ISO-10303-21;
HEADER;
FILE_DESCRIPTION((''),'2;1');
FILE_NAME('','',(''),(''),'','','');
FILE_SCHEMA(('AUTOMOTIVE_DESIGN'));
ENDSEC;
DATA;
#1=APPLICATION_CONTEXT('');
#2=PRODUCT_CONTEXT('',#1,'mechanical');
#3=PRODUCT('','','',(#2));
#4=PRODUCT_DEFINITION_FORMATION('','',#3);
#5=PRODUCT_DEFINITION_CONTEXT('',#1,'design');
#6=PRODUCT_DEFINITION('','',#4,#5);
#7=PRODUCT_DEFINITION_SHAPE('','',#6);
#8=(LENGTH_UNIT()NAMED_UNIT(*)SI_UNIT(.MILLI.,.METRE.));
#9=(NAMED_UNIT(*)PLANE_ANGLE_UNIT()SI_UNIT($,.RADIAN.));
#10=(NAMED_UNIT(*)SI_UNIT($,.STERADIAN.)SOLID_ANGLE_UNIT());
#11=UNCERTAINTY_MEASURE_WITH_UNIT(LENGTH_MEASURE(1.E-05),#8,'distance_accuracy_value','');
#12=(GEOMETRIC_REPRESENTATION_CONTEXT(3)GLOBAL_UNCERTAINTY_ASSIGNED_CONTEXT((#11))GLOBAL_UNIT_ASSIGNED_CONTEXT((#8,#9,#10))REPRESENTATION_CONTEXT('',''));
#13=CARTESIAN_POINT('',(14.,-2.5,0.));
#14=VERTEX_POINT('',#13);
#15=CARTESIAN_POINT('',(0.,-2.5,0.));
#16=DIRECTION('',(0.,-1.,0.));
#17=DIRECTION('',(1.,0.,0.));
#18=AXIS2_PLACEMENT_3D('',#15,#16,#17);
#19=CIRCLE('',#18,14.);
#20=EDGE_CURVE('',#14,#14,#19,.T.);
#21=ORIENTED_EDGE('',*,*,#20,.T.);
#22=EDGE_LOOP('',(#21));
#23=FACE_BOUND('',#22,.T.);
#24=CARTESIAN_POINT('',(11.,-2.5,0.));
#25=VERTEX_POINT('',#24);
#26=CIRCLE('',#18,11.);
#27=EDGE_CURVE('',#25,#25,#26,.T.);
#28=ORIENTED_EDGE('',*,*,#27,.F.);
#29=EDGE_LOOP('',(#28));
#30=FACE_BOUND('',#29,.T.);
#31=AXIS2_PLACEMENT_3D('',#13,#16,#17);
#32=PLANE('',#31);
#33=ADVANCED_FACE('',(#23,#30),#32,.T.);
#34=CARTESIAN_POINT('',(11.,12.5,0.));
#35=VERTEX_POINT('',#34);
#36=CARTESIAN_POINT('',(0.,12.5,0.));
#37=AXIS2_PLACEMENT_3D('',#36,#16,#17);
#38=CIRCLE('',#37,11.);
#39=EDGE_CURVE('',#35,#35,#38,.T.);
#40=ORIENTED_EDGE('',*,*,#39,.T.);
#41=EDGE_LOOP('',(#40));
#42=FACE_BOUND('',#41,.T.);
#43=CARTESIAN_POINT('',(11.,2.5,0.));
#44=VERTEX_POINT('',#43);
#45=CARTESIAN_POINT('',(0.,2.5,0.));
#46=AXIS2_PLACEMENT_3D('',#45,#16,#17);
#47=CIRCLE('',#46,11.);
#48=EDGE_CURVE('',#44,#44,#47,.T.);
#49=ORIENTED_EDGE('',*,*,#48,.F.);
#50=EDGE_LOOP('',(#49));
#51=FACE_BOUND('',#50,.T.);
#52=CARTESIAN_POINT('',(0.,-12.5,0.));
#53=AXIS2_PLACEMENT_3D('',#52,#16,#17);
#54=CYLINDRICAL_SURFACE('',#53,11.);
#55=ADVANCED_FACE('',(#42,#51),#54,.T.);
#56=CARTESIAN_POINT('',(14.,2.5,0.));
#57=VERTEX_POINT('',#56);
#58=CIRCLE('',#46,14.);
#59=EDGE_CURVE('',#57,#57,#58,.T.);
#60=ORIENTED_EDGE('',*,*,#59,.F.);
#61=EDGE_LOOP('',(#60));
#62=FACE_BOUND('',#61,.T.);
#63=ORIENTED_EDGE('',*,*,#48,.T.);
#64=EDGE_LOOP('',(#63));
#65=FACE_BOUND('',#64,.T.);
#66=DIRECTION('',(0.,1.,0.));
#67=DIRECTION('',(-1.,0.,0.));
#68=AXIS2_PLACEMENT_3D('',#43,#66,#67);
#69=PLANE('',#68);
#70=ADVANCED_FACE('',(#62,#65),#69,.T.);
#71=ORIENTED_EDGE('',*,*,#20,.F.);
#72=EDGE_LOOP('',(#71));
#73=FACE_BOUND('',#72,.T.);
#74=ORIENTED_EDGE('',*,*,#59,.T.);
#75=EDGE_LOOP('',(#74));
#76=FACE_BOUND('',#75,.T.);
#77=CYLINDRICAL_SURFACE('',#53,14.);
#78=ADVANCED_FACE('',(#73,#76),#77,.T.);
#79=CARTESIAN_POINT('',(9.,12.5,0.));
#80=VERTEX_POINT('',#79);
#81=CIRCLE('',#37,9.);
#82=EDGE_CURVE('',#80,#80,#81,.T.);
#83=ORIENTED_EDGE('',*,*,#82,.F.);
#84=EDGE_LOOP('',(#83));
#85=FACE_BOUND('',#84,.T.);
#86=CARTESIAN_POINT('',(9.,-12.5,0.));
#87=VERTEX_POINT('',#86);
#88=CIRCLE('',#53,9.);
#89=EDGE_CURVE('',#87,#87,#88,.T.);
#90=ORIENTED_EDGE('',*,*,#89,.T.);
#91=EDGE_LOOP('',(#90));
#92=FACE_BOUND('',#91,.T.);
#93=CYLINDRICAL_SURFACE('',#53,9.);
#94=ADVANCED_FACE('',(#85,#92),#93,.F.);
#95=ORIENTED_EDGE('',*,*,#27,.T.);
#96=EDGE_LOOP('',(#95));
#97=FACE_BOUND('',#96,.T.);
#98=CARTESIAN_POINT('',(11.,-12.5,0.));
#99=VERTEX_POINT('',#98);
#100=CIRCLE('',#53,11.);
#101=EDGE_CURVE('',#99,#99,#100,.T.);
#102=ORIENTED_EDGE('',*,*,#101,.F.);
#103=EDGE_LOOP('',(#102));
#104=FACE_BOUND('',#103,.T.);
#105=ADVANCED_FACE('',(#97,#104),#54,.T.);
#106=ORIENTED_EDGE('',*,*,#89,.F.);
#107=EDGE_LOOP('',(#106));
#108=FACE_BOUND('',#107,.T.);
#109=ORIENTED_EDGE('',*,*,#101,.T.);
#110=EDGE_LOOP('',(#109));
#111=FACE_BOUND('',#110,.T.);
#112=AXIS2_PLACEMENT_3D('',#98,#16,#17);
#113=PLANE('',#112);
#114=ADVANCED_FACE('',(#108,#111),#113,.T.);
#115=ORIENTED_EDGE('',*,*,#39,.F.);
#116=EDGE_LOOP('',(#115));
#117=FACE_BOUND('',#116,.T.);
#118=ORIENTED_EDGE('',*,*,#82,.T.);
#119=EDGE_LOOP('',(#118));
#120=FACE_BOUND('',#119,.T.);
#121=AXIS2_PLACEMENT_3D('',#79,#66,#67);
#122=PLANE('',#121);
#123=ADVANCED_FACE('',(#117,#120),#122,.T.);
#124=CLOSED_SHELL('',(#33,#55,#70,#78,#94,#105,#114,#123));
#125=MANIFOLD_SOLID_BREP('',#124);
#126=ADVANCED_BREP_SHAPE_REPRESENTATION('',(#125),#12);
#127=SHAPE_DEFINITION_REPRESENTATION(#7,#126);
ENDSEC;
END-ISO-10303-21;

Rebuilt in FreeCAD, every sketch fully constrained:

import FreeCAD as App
import Part
import Sketcher
from FreeCAD import Vector
Q = App.Units.Quantity


def add_polygon(sketch, points):
    """Adds a closed chain of lines whose ends are joined by coincident constraints."""
    first, n = sketch.GeometryCount, len(points)
    for a, b in zip(points, points[1:] + points[:1]):
        sketch.addGeometry(Part.LineSegment(App.Vector(*a, 0), App.Vector(*b, 0)), False)
    for i in range(n):
        sketch.addConstraint(Sketcher.Constraint("Coincident", first + i, 2, first + (i + 1) % n, 1))

doc = App.newDocument("Part")
body = doc.addObject("PartDesign::Body", "Body")

# Sketch on XY plane
sketch1 = doc.addObject("Sketcher::SketchObject", "Sketch")
body.addObject(sketch1)
sketch1.AttachmentSupport = (doc.XY_Plane, [""])
sketch1.MapMode = "FlatFace"
add_polygon(sketch1, [(11, 12.5), (9, 12.5), (9, -12.5), (11, -12.5), (11, -2.5), (14, -2.5), (14, 2.5), (11, 2.5)])  # lines 0-7
sketch1.addConstraint([
    Sketcher.Constraint("Horizontal", 0),
    Sketcher.Constraint("Vertical", 1),
    Sketcher.Constraint("Horizontal", 2),
    Sketcher.Constraint("Vertical", 3),
    Sketcher.Constraint("Horizontal", 4),
    Sketcher.Constraint("Vertical", 5),
    Sketcher.Constraint("Horizontal", 6),
    Sketcher.Constraint("Vertical", 7),
    Sketcher.Constraint("Symmetric", 3, 2, 6, 2, -1),
    Sketcher.Constraint("Equal", 3, 7),
    Sketcher.Constraint("DistanceX", 0, 2, 0, 1, Q("2 mm")),
    Sketcher.Constraint("DistanceX", 4, 1, 4, 2, Q("3 mm")),
    Sketcher.Constraint("DistanceY", 1, 2, 1, 1, Q("25 mm")),
    Sketcher.Constraint("DistanceY", 3, 1, 3, 2, Q("10 mm")),
    Sketcher.Constraint("DistanceX", -1, 1, 0, 2, Q("9 mm")),
])
revolution = doc.addObject("PartDesign::Revolution", "Revolution")
body.addObject(revolution)
revolution.Profile = sketch1
revolution.ReferenceAxis = (sketch1, ["V_Axis"])
revolution.Angle = 360

doc.recompute()
